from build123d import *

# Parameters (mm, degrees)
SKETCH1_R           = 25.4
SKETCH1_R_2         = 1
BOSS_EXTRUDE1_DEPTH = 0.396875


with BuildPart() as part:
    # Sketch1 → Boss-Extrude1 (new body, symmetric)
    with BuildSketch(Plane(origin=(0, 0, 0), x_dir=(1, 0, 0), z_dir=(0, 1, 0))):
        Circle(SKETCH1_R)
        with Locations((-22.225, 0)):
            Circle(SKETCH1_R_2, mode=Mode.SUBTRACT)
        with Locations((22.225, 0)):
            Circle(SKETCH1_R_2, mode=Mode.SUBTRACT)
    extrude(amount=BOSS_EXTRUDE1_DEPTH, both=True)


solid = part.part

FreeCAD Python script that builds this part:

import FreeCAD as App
import Part
import Sketcher
Q = App.Units.Quantity

doc = App.newDocument("Part")
body = doc.addObject("PartDesign::Body", "Body")

# Sketch on XZ plane
sketch1 = doc.addObject("Sketcher::SketchObject", "Sketch")
body.addObject(sketch1)
sketch1.AttachmentSupport = (doc.XZ_Plane, [""])
sketch1.MapMode = "FlatFace"
sketch1.addGeometry(Part.Circle(App.Vector(0, 0, 0), App.Vector(0, 0, 1), 25.4), False)
sketch1.addGeometry(Part.Circle(App.Vector(-22.2, 0, 0), App.Vector(0, 0, 1), 1), False)
sketch1.addGeometry(Part.Circle(App.Vector(22.2, 0, 0), App.Vector(0, 0, 1), 1), False)
sketch1.addConstraint(Sketcher.Constraint("Coincident", 0, 3, -1, 1))
sketch1.addConstraint(Sketcher.Constraint("Equal", 1, 2))
sketch1.addConstraint(Sketcher.Constraint("Symmetric", 1, 3, 2, 3, -1, 1))
sketch1.addConstraint(Sketcher.Constraint("PointOnObject", 1, 3, -1))
sketch1.addConstraint(Sketcher.Constraint("Diameter", 0, Q("2 in")))
sketch1.addConstraint(Sketcher.Constraint("Diameter", 1, Q("2 mm")))
sketch1.addConstraint(Sketcher.Constraint("DistanceX", 1, 3, 2, 3, Q("1.75 in")))
pad1 = doc.addObject("PartDesign::Pad", "Pad")
body.addObject(pad1)
pad1.Profile = sketch1
pad1.Length = Q("0.03125 in")
pad1.Midplane = True

doc.recompute()
